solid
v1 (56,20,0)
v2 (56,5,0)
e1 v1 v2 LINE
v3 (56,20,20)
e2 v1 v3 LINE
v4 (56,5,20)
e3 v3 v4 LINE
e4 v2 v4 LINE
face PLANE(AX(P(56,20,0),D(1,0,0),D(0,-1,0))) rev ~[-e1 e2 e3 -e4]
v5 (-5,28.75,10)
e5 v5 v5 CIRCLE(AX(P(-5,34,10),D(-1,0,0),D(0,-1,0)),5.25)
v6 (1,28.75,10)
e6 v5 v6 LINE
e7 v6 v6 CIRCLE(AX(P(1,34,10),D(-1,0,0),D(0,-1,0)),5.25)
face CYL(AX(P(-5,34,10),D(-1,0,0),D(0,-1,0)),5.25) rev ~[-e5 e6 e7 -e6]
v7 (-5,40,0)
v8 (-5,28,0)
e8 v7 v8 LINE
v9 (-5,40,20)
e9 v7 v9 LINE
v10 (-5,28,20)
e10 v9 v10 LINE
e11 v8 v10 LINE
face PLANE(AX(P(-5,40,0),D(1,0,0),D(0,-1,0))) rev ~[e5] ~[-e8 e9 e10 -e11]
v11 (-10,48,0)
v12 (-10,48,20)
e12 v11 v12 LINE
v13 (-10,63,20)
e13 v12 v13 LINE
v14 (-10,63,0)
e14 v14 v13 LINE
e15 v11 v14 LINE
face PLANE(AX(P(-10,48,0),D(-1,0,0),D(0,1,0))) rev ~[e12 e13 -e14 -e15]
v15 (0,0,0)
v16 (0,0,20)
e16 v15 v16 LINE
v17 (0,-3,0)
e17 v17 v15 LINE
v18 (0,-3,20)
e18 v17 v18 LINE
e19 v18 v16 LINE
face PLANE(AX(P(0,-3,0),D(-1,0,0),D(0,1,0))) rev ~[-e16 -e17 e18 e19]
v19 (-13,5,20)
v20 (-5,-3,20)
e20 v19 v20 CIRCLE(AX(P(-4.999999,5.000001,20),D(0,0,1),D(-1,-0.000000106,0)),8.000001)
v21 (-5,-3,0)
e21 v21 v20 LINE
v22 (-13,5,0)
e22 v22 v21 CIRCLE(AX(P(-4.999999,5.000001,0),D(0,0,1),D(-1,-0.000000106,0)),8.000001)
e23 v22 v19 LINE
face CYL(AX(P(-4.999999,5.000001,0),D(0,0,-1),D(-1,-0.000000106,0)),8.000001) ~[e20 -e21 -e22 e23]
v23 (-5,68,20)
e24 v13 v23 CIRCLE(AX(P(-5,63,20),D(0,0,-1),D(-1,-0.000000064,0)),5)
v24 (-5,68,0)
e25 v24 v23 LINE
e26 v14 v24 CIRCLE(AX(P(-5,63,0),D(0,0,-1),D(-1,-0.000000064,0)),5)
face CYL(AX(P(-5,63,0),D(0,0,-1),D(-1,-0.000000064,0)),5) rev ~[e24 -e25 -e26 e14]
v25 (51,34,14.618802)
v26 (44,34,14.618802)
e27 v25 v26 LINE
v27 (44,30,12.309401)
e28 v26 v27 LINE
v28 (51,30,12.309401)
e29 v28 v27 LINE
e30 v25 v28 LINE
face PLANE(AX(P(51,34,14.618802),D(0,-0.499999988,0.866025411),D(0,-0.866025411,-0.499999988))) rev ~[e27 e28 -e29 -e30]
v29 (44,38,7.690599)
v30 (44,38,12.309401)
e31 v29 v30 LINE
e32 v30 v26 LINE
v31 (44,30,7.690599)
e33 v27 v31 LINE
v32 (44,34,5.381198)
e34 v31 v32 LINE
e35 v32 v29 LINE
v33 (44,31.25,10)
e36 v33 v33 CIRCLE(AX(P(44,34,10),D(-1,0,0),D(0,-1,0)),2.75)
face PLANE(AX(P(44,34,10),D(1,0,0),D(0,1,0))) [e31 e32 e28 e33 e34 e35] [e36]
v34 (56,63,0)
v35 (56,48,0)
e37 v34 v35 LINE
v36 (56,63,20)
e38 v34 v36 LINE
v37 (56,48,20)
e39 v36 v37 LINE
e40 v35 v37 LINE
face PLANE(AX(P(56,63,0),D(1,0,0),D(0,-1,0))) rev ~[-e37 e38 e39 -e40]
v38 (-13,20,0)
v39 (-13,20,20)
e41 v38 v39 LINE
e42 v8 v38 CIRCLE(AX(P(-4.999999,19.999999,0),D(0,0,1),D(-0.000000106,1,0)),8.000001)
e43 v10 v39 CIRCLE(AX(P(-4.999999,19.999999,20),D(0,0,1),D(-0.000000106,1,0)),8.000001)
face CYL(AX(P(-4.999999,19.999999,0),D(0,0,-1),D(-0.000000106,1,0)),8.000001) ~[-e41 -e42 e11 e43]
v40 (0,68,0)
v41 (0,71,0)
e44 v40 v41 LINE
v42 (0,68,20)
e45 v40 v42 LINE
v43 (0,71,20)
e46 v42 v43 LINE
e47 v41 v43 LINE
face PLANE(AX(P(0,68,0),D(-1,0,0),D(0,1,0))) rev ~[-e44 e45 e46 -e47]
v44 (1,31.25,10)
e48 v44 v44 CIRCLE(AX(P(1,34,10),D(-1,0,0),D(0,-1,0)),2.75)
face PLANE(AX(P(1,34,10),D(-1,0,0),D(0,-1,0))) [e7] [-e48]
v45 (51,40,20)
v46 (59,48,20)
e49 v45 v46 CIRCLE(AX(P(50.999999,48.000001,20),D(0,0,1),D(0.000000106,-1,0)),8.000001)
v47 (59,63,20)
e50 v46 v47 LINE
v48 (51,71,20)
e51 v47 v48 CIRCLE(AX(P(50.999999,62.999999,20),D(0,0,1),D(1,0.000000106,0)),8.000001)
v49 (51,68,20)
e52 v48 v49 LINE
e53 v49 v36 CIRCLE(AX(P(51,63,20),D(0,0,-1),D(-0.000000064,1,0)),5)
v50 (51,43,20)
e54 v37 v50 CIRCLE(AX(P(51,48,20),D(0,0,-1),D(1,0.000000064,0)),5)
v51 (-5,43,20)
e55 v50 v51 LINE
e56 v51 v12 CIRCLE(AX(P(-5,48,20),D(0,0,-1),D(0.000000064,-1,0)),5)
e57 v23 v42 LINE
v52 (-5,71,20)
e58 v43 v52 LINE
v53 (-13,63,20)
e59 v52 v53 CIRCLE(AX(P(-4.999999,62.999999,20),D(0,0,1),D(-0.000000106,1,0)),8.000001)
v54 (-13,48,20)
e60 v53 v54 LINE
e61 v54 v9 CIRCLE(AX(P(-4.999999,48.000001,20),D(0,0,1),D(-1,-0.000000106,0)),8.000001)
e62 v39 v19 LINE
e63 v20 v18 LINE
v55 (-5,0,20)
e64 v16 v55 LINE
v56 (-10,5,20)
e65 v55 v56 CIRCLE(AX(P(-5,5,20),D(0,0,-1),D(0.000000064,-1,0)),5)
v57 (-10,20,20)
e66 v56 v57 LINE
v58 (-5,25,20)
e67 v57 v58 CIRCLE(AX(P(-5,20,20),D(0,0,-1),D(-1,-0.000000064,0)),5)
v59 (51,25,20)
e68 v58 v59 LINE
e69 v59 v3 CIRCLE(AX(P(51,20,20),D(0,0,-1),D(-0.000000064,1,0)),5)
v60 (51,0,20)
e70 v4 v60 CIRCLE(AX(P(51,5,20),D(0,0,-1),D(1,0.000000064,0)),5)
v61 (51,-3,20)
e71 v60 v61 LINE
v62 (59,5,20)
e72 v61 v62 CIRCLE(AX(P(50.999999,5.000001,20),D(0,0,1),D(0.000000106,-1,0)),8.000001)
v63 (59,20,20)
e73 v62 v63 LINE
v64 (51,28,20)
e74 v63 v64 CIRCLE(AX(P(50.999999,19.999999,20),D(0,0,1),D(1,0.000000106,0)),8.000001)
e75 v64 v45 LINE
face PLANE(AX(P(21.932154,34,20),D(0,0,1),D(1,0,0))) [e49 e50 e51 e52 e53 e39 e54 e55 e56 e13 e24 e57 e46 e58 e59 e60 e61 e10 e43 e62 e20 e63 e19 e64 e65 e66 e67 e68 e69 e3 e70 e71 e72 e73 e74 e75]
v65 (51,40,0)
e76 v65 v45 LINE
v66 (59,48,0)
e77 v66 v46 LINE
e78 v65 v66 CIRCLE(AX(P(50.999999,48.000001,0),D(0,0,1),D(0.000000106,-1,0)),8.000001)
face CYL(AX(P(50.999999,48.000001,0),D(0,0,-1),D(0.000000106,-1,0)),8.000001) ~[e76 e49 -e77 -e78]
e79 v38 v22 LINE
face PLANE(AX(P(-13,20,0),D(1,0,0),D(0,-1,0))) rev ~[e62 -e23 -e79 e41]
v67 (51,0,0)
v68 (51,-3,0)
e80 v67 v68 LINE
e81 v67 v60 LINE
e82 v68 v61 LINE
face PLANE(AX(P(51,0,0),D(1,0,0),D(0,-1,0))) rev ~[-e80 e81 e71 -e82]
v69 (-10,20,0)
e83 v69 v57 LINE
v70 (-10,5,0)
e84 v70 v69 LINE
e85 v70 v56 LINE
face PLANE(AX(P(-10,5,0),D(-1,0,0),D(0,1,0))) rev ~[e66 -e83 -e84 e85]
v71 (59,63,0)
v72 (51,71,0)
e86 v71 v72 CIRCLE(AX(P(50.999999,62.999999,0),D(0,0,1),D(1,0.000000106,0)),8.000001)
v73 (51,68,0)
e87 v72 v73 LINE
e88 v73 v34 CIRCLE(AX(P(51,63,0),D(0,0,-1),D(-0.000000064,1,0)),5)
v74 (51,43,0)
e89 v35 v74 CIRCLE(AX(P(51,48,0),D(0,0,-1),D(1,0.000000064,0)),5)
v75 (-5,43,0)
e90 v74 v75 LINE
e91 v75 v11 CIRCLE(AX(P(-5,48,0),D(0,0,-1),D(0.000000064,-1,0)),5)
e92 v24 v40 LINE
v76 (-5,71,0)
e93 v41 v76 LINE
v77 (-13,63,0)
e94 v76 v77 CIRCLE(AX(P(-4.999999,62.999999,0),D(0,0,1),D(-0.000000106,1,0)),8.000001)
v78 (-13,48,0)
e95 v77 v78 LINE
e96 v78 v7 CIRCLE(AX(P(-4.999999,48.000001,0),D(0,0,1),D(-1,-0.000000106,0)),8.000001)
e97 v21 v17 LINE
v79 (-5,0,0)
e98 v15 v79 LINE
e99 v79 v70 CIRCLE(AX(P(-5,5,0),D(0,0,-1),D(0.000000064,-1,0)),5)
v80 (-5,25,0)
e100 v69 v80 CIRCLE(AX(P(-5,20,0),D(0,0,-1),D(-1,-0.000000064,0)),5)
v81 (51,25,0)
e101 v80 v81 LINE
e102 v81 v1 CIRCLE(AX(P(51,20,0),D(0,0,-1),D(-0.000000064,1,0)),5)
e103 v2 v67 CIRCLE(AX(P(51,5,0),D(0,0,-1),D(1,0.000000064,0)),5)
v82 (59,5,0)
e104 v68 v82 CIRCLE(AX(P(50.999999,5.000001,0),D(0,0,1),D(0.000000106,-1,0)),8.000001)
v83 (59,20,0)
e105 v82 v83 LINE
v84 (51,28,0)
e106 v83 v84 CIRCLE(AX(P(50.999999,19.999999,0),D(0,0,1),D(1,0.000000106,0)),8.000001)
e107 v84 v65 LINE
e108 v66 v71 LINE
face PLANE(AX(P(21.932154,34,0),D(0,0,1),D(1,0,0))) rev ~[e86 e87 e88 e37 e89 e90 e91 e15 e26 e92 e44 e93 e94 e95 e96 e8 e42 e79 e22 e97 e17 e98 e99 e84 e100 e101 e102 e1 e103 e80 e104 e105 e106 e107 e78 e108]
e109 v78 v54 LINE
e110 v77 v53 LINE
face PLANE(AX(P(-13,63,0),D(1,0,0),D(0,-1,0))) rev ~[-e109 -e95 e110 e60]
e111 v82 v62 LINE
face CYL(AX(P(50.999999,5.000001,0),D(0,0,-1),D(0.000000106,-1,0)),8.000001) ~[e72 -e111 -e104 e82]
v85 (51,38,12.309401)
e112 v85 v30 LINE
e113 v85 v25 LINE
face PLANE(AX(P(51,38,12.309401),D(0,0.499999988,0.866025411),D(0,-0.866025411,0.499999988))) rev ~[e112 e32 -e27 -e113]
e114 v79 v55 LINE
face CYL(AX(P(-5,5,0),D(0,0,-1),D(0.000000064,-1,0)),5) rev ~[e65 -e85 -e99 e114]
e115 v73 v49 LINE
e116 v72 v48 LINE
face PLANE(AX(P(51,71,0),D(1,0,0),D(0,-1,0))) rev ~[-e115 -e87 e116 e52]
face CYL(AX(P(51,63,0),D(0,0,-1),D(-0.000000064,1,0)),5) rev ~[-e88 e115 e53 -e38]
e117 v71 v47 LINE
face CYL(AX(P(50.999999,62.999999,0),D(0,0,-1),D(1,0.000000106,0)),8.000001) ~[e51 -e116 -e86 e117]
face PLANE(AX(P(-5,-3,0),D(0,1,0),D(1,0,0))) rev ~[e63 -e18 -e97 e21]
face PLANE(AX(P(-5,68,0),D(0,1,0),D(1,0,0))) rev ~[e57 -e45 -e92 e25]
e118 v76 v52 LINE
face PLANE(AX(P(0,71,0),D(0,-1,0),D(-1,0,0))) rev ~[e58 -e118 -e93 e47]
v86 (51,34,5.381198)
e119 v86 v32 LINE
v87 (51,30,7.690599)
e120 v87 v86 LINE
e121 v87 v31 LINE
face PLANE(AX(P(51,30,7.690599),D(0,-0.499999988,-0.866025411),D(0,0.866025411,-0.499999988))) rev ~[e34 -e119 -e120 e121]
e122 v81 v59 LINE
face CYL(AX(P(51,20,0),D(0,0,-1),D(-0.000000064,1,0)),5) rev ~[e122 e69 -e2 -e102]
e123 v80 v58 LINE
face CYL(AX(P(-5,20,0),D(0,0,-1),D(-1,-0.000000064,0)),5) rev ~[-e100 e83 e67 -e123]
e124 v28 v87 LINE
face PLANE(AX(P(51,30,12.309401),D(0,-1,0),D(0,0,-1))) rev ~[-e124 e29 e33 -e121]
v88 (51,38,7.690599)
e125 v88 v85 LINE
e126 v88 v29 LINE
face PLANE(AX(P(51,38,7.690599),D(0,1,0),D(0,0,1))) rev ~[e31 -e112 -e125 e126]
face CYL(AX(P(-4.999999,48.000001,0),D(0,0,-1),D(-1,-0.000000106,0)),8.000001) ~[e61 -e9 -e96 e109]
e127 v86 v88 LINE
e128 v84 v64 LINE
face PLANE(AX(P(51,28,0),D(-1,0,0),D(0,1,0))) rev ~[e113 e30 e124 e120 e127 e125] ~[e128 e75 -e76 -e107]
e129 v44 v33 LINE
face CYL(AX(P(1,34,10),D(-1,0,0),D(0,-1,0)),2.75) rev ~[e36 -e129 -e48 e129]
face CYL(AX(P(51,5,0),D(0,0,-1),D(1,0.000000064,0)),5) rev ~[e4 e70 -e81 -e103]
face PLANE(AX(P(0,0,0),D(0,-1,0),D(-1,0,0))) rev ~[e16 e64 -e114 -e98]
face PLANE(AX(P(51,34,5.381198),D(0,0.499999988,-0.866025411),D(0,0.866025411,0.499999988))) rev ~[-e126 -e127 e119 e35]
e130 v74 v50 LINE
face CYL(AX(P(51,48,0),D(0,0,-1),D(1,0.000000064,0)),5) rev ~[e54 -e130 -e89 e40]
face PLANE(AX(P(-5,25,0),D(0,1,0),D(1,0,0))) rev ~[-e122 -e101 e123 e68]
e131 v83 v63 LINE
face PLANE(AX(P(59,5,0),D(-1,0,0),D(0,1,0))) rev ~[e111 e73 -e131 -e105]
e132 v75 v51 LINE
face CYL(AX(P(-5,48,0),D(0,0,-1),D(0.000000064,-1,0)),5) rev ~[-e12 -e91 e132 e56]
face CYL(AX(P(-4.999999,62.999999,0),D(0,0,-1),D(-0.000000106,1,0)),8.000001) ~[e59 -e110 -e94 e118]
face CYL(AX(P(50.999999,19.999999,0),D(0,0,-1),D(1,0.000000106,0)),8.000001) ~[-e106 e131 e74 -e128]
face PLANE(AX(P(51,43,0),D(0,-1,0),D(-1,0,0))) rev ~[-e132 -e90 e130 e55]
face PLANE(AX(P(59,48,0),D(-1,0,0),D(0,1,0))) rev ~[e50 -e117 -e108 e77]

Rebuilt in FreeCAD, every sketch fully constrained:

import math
import FreeCAD as App
import Part
import Sketcher
from FreeCAD import Vector
Q = App.Units.Quantity

doc = App.newDocument("Part")
body = doc.addObject("PartDesign::Body", "Body")

# Sketch on XY plane
sketch1 = doc.addObject("Sketcher::SketchObject", "Sketch")
body.addObject(sketch1)
sketch1.AttachmentSupport = (doc.XY_Plane, [""])
sketch1.MapMode = "FlatFace"
sketch1.addGeometry([
    Part.ArcOfCircle(Part.Circle(Vector(-5, 5, 0), Vector(0, 0, 1), 5), math.radians(180), math.radians(270)),  # 0
    Part.LineSegment(Vector(-10, 5, 0), Vector(-10, 20, 0)),  # 1
    Part.ArcOfCircle(Part.Circle(Vector(-5, 20, 0), Vector(0, 0, 1), 5), math.radians(90), math.radians(180)),  # 2
    Part.LineSegment(Vector(-5, 25, 0), Vector(51, 25, 0)),  # 3
    Part.ArcOfCircle(Part.Circle(Vector(51, 20, 0), Vector(0, 0, 1), 5), math.radians(0), math.radians(90)),  # 4
    Part.LineSegment(Vector(56, 20, 0), Vector(56, 5, 0)),  # 5
    Part.ArcOfCircle(Part.Circle(Vector(51, 5, 0), Vector(0, 0, 1), 5), math.radians(-90), math.radians(0)),  # 6
    Part.LineSegment(Vector(51, 0, 0), Vector(51, -3, 0)),  # 7
    Part.ArcOfCircle(Part.Circle(Vector(51, 5, 0), Vector(0, 0, 1), 8), math.radians(-90), math.radians(0)),  # 8
    Part.LineSegment(Vector(59, 5, 0), Vector(59, 20, 0)),  # 9
    Part.ArcOfCircle(Part.Circle(Vector(51, 20, 0), Vector(0, 0, 1), 8), math.radians(0), math.radians(90)),  # 10
    Part.LineSegment(Vector(51, 28, 0), Vector(51, 40, 0)),  # 11
    Part.ArcOfCircle(Part.Circle(Vector(51, 48, 0), Vector(0, 0, 1), 8), math.radians(-90), math.radians(0)),  # 12
    Part.LineSegment(Vector(59, 48, 0), Vector(59, 63, 0)),  # 13
    Part.ArcOfCircle(Part.Circle(Vector(51, 63, 0), Vector(0, 0, 1), 8), math.radians(0), math.radians(90)),  # 14
    Part.LineSegment(Vector(51, 71, 0), Vector(51, 68, 0)),  # 15
    Part.ArcOfCircle(Part.Circle(Vector(51, 63, 0), Vector(0, 0, 1), 5), math.radians(0), math.radians(90)),  # 16
    Part.LineSegment(Vector(56, 63, 0), Vector(56, 48, 0)),  # 17
    Part.ArcOfCircle(Part.Circle(Vector(51, 48, 0), Vector(0, 0, 1), 5), math.radians(-90), math.radians(0)),  # 18
    Part.LineSegment(Vector(51, 43, 0), Vector(-5, 43, 0)),  # 19
    Part.ArcOfCircle(Part.Circle(Vector(-5, 48, 0), Vector(0, 0, 1), 5), math.radians(180), math.radians(270)),  # 20
    Part.LineSegment(Vector(-10, 48, 0), Vector(-10, 63, 0)),  # 21
    Part.ArcOfCircle(Part.Circle(Vector(-5, 63, 0), Vector(0, 0, 1), 5), math.radians(90), math.radians(180)),  # 22
    Part.LineSegment(Vector(-5, 68, 0), Vector(0, 68, 0)),  # 23
    Part.LineSegment(Vector(0, 68, 0), Vector(0, 71, 0)),  # 24
    Part.LineSegment(Vector(0, 71, 0), Vector(-5, 71, 0)),  # 25
    Part.ArcOfCircle(Part.Circle(Vector(-5, 63, 0), Vector(0, 0, 1), 8), math.radians(90), math.radians(180)),  # 26
    Part.LineSegment(Vector(-13, 63, 0), Vector(-13, 48, 0)),  # 27
    Part.ArcOfCircle(Part.Circle(Vector(-5, 48, 0), Vector(0, 0, 1), 8), math.radians(-180), math.radians(-90)),  # 28
    Part.LineSegment(Vector(-5, 40, 0), Vector(-5, 28, 0)),  # 29
    Part.ArcOfCircle(Part.Circle(Vector(-5, 20, 0), Vector(0, 0, 1), 8), math.radians(90), math.radians(180)),  # 30
    Part.LineSegment(Vector(-13, 20, 0), Vector(-13, 5, 0)),  # 31
    Part.ArcOfCircle(Part.Circle(Vector(-5, 5, 0), Vector(0, 0, 1), 8), math.radians(-180), math.radians(-90)),  # 32
    Part.LineSegment(Vector(-5, -3, 0), Vector(0, -3, 0)),  # 33
    Part.LineSegment(Vector(0, -3, 0), Vector(0, 0, 0)),  # 34
    Part.LineSegment(Vector(0, 0, 0), Vector(-5, 0, 0)),  # 35
], False)
sketch1.addConstraint([
    Sketcher.Constraint("Tangent", 0, 1, 1, 1),
    Sketcher.Constraint("Tangent", 1, 2, 2, 2),
    Sketcher.Constraint("Tangent", 2, 1, 3, 1),
    Sketcher.Constraint("Tangent", 3, 2, 4, 2),
    Sketcher.Constraint("Tangent", 4, 1, 5, 1),
    Sketcher.Constraint("Tangent", 5, 2, 6, 2),
    Sketcher.Constraint("Coincident", 6, 1, 7, 1),
    Sketcher.Constraint("Coincident", 7, 2, 8, 1),
    Sketcher.Constraint("Tangent", 8, 2, 9, 1),
    Sketcher.Constraint("Tangent", 9, 2, 10, 1),
    Sketcher.Constraint("Coincident", 10, 2, 11, 1),
    Sketcher.Constraint("Coincident", 11, 2, 12, 1),
    Sketcher.Constraint("Tangent", 12, 2, 13, 1),
    Sketcher.Constraint("Tangent", 13, 2, 14, 1),
    Sketcher.Constraint("Coincident", 14, 2, 15, 1),
    Sketcher.Constraint("Coincident", 15, 2, 16, 2),
    Sketcher.Constraint("Tangent", 16, 1, 17, 1),
    Sketcher.Constraint("Tangent", 17, 2, 18, 2),
    Sketcher.Constraint("Tangent", 18, 1, 19, 1),
    Sketcher.Constraint("Tangent", 19, 2, 20, 2),
    Sketcher.Constraint("Tangent", 20, 1, 21, 1),
    Sketcher.Constraint("Tangent", 21, 2, 22, 2),
    Sketcher.Constraint("Tangent", 22, 1, 23, 1),
    Sketcher.Constraint("Coincident", 23, 2, 24, 1),
    Sketcher.Constraint("Coincident", 24, 2, 25, 1),
    Sketcher.Constraint("Tangent", 25, 2, 26, 1),
    Sketcher.Constraint("Tangent", 26, 2, 27, 1),
    Sketcher.Constraint("Tangent", 27, 2, 28, 1),
    Sketcher.Constraint("Coincident", 28, 2, 29, 1),
    Sketcher.Constraint("Coincident", 29, 2, 30, 1),
    Sketcher.Constraint("Tangent", 30, 2, 31, 1),
    Sketcher.Constraint("Tangent", 31, 2, 32, 1),
    Sketcher.Constraint("Tangent", 32, 2, 33, 1),
    Sketcher.Constraint("Coincident", 33, 2, 34, 1),
    Sketcher.Constraint("Coincident", 34, 2, 35, 1),
    Sketcher.Constraint("Tangent", 35, 2, 0, 2),
    Sketcher.Constraint("Vertical", 1),
    Sketcher.Constraint("Horizontal", 3),
    Sketcher.Constraint("Vertical", 5),
    Sketcher.Constraint("Vertical", 7),
    Sketcher.Constraint("Vertical", 9),
    Sketcher.Constraint("Vertical", 11),
    Sketcher.Constraint("Vertical", 13),
    Sketcher.Constraint("Vertical", 15),
    Sketcher.Constraint("Vertical", 17),
    Sketcher.Constraint("Horizontal", 19),
    Sketcher.Constraint("Vertical", 21),
    Sketcher.Constraint("Horizontal", 23),
    Sketcher.Constraint("Vertical", 24),
    Sketcher.Constraint("Horizontal", 25),
    Sketcher.Constraint("Vertical", 27),
    Sketcher.Constraint("Vertical", 29),
    Sketcher.Constraint("Vertical", 31),
    Sketcher.Constraint("Horizontal", 33),
    Sketcher.Constraint("Vertical", 34),
    Sketcher.Constraint("Horizontal", 35),
    Sketcher.Constraint("Coincident", 34, 2, -1, 1),
    Sketcher.Constraint("Coincident", 8, 3, 6, 3),
    Sketcher.Constraint("Coincident", 10, 3, 4, 3),
    Sketcher.Constraint("Coincident", 16, 3, 14, 3),
    Sketcher.Constraint("Coincident", 18, 3, 12, 3),
    Sketcher.Constraint("Coincident", 26, 3, 22, 3),
    Sketcher.Constraint("Coincident", 28, 3, 20, 3),
    Sketcher.Constraint("Coincident", 30, 3, 2, 3),
    Sketcher.Constraint("Coincident", 32, 3, 0, 3),
    Sketcher.Constraint("Equal", 0, 2),
    Sketcher.Constraint("Equal", 2, 4),
    Sketcher.Constraint("Equal", 4, 6),
    Sketcher.Constraint("Equal", 10, 12),
    Sketcher.Constraint("Equal", 12, 14),
    Sketcher.Constraint("Equal", 6, 16),
    Sketcher.Constraint("Equal", 18, 20),
    Sketcher.Constraint("Equal", 20, 22),
    Sketcher.Constraint("Equal", 14, 26),
    Sketcher.Constraint("Equal", 28, 30),
    Sketcher.Constraint("PointOnObject", 6, 1, -1),
    Sketcher.Constraint("PointOnObject", 23, 2, -2),
    Sketcher.Constraint("Horizontal", 16, 3, 22, 3),
    Sketcher.Constraint("Vertical", 10, 3, 12, 3),
    Sketcher.Constraint("Vertical", 2, 3, 20, 3),
    Sketcher.Constraint("Vertical", 3, 2, 6, 1),
    Sketcher.Constraint("Vertical", 7, 2, 10, 2),
    Sketcher.Constraint("Vertical", 11, 2, 14, 2),
    Sketcher.Constraint("Vertical", 25, 2, 28, 2),
    Sketcher.Constraint("Equal", 9, 13),
    Sketcher.Constraint("Radius", 0, Q("5 mm")),
    Sketcher.Constraint("Radius", 8, Q("8.000001 mm")),
    Sketcher.Constraint("DistanceX", 3, 1, 3, 2, Q("56 mm")),
    Sketcher.Constraint("DistanceX", 23, 1, 23, 2, Q("5 mm")),
    Sketcher.Constraint("DistanceY", 1, 1, 1, 2, Q("15 mm")),
    Sketcher.Constraint("DistanceY", 11, 1, 11, 2, Q("12 mm")),
])
pad1 = doc.addObject("PartDesign::Pad", "Pad")
body.addObject(pad1)
pad1.Profile = sketch1
pad1.Length = 20

# Sketch on YZ plane
sketch2 = doc.addObject("Sketcher::SketchObject", "Sketch001")
body.addObject(sketch2)
sketch2.AttachmentSupport = (doc.YZ_Plane, [""])
sketch2.MapMode = "FlatFace"
sketch2.AttachmentOffset = App.Placement(Vector(0, 0, -5), App.Rotation())
sketch2.addGeometry(Part.Circle(Vector(34, 10, 0), Vector(0, 0, 1), 5), False)
sketch2.addConstraint([
    Sketcher.Constraint("Diameter", 0, Q("10.5 mm")),
    Sketcher.Constraint("DistanceX", -1, 1, 0, 3, Q("34 mm")),
    Sketcher.Constraint("DistanceY", -1, 1, 0, 3, Q("10 mm")),
])
pocket1 = doc.addObject("PartDesign::Pocket", "Pocket")
body.addObject(pocket1)
pocket1.Profile = sketch2
pocket1.Length = 6
pocket1.Reversed = True

# Sketch on YZ plane
sketch3 = doc.addObject("Sketcher::SketchObject", "Sketch002")
body.addObject(sketch3)
sketch3.AttachmentSupport = (doc.YZ_Plane, [""])
sketch3.MapMode = "FlatFace"
sketch3.AttachmentOffset = App.Placement(Vector(0, 0, 51), App.Rotation())
sketch3.addGeometry([
    Part.LineSegment(Vector(38, 7.7, 0), Vector(38, 12.3, 0)),  # 0
    Part.LineSegment(Vector(38, 12.3, 0), Vector(34, 14.6, 0)),  # 1
    Part.LineSegment(Vector(34, 14.6, 0), Vector(30, 12.3, 0)),  # 2
    Part.LineSegment(Vector(30, 12.3, 0), Vector(30, 7.7, 0)),  # 3
    Part.LineSegment(Vector(30, 7.7, 0), Vector(34, 5.4, 0)),  # 4
    Part.LineSegment(Vector(34, 5.4, 0), Vector(38, 7.7, 0)),  # 5
], False)
sketch3.addConstraint([
    Sketcher.Constraint("Coincident", 0, 2, 1, 1),
    Sketcher.Constraint("Coincident", 1, 2, 2, 1),
    Sketcher.Constraint("Coincident", 2, 2, 3, 1),
    Sketcher.Constraint("Coincident", 3, 2, 4, 1),
    Sketcher.Constraint("Coincident", 4, 2, 5, 1),
    Sketcher.Constraint("Coincident", 5, 2, 0, 1),
    Sketcher.Constraint("Vertical", 0),
    Sketcher.Constraint("Vertical", 3),
    Sketcher.Constraint("Parallel", 1, 4),
    Sketcher.Constraint("Parallel", 2, 5),
    Sketcher.Constraint("Horizontal", 0, 2, 2, 2),
    Sketcher.Constraint("Horizontal", 3, 2, 5, 2),
    Sketcher.Constraint("Vertical", 1, 2, 4, 2),
    Sketcher.Constraint("Angle", 1, Q("150.000001 deg")),
    Sketcher.Constraint("DistanceX", -1, 1, 0, 2, Q("38 mm")),
    Sketcher.Constraint("DistanceX", -1, 1, 1, 2, Q("34 mm")),
    Sketcher.Constraint("DistanceY", 0, 1, 0, 2, Q("4.618802 mm")),
    Sketcher.Constraint("DistanceY", -1, 1, 0, 2, Q("12.309401 mm")),
])
pocket2 = doc.addObject("PartDesign::Pocket", "Pocket001")
body.addObject(pocket2)
pocket2.Profile = sketch3
pocket2.Length = 7

# Sketch on YZ plane
sketch4 = doc.addObject("Sketcher::SketchObject", "Sketch003")
body.addObject(sketch4)
sketch4.AttachmentSupport = (doc.YZ_Plane, [""])
sketch4.MapMode = "FlatFace"
sketch4.AttachmentOffset = App.Placement(Vector(0, 0, 1), App.Rotation())
sketch4.addGeometry(Part.Circle(Vector(34, 10, 0), Vector(0, 0, 1), 2.8), False)
sketch4.addConstraint([
    Sketcher.Constraint("Diameter", 0, Q("5.5 mm")),
    Sketcher.Constraint("DistanceX", -1, 1, 0, 3, Q("34 mm")),
    Sketcher.Constraint("DistanceY", -1, 1, 0, 3, Q("10 mm")),
])
pocket3 = doc.addObject("PartDesign::Pocket", "Pocket002")
body.addObject(pocket3)
pocket3.Profile = sketch4
pocket3.Type = "ThroughAll"
pocket3.Reversed = True

doc.recompute()
